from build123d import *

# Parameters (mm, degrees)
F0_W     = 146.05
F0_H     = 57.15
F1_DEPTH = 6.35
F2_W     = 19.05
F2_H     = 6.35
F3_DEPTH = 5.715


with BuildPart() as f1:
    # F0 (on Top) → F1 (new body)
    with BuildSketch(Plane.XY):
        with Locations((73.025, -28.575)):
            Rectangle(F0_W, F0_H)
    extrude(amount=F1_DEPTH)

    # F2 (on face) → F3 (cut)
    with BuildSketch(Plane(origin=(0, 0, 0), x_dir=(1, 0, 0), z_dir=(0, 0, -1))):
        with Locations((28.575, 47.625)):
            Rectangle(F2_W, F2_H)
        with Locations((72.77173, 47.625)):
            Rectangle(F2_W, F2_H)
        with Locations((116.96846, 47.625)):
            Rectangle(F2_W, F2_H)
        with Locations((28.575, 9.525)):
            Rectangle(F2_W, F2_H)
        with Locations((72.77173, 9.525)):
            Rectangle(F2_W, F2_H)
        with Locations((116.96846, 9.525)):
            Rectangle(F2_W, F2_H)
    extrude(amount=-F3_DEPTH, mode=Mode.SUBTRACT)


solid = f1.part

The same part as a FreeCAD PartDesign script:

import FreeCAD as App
import Part
import Sketcher
from FreeCAD import Vector
Q = App.Units.Quantity


def add_polygon(sketch, points):
    """Adds a closed chain of lines whose ends are joined by coincident constraints."""
    first, n = sketch.GeometryCount, len(points)
    for a, b in zip(points, points[1:] + points[:1]):
        sketch.addGeometry(Part.LineSegment(App.Vector(*a, 0), App.Vector(*b, 0)), False)
    for i in range(n):
        sketch.addConstraint(Sketcher.Constraint("Coincident", first + i, 2, first + (i + 1) % n, 1))

doc = App.newDocument("Part")
body = doc.addObject("PartDesign::Body", "Body")

sketch1 = doc.addObject("Sketcher::SketchObject", "Sketch")
body.addObject(sketch1)
sketch1.AttachmentSupport = (doc.XY_Plane, [""])
sketch1.MapMode = "FlatFace"
add_polygon(sketch1, [(0, 0), (0, -57), (146, -57), (146, 0)])
sketch1.addConstraint(Sketcher.Constraint("Vertical", 0))
sketch1.addConstraint(Sketcher.Constraint("Horizontal", 1))
sketch1.addConstraint(Sketcher.Constraint("Vertical", 2))
sketch1.addConstraint(Sketcher.Constraint("Horizontal", 3))
sketch1.addConstraint(Sketcher.Constraint("Coincident", 3, 2, -1, 1))
sketch1.addConstraint(Sketcher.Constraint("DistanceX", 1, 1, 1, 2, Q("5.75 in")))
sketch1.addConstraint(Sketcher.Constraint("DistanceY", 0, 2, 0, 1, Q("2.25 in")))
pad1 = doc.addObject("PartDesign::Pad", "Pad")
body.addObject(pad1)
pad1.Profile = sketch1
pad1.Length = Q("0.25 in")

sketch2 = doc.addObject("Sketcher::SketchObject", "Sketch001")
body.addObject(sketch2)
sketch2.AttachmentSupport = (doc.XY_Plane, [""])
sketch2.MapMode = "FlatFace"
add_polygon(sketch2, [(19, -51), (19, -44), (38, -44), (38, -51)])
add_polygon(sketch2, [(63, -51), (63, -44), (82, -44), (82, -51)])
add_polygon(sketch2, [(107, -51), (107, -44), (126, -44), (126, -51)])
add_polygon(sketch2, [(19, -13), (19, -6), (38, -6), (38, -13)])
add_polygon(sketch2, [(63, -13), (63, -6), (82, -6), (82, -13)])
add_polygon(sketch2, [(107, -13), (107, -6), (126, -6), (126, -13)])
sketch2.addConstraint(Sketcher.Constraint("Vertical", 0))
sketch2.addConstraint(Sketcher.Constraint("Horizontal", 1))
sketch2.addConstraint(Sketcher.Constraint("Vertical", 2))
sketch2.addConstraint(Sketcher.Constraint("Horizontal", 3))
sketch2.addConstraint(Sketcher.Constraint("Vertical", 4))
sketch2.addConstraint(Sketcher.Constraint("Horizontal", 5))
sketch2.addConstraint(Sketcher.Constraint("Vertical", 6))
sketch2.addConstraint(Sketcher.Constraint("Horizontal", 7))
sketch2.addConstraint(Sketcher.Constraint("Vertical", 8))
sketch2.addConstraint(Sketcher.Constraint("Horizontal", 9))
sketch2.addConstraint(Sketcher.Constraint("Vertical", 10))
sketch2.addConstraint(Sketcher.Constraint("Horizontal", 11))
sketch2.addConstraint(Sketcher.Constraint("Vertical", 12))
sketch2.addConstraint(Sketcher.Constraint("Horizontal", 13))
sketch2.addConstraint(Sketcher.Constraint("Vertical", 14))
sketch2.addConstraint(Sketcher.Constraint("Horizontal", 15))
sketch2.addConstraint(Sketcher.Constraint("Vertical", 16))
sketch2.addConstraint(Sketcher.Constraint("Horizontal", 17))
sketch2.addConstraint(Sketcher.Constraint("Vertical", 18))
sketch2.addConstraint(Sketcher.Constraint("Horizontal", 19))
sketch2.addConstraint(Sketcher.Constraint("Vertical", 20))
sketch2.addConstraint(Sketcher.Constraint("Horizontal", 21))
sketch2.addConstraint(Sketcher.Constraint("Vertical", 22))
sketch2.addConstraint(Sketcher.Constraint("Horizontal", 23))
sketch2.addConstraint(Sketcher.Constraint("Horizontal", 1, 2, 4, 2))
sketch2.addConstraint(Sketcher.Constraint("Horizontal", 3, 2, 6, 2))
sketch2.addConstraint(Sketcher.Constraint("Horizontal", 5, 2, 8, 2))
sketch2.addConstraint(Sketcher.Constraint("Horizontal", 7, 2, 10, 2))
sketch2.addConstraint(Sketcher.Constraint("Horizontal", 13, 2, 16, 2))
sketch2.addConstraint(Sketcher.Constraint("Horizontal", 15, 2, 18, 2))
sketch2.addConstraint(Sketcher.Constraint("Horizontal", 17, 2, 20, 2))
sketch2.addConstraint(Sketcher.Constraint("Horizontal", 19, 2, 22, 2))
sketch2.addConstraint(Sketcher.Constraint("Vertical", 3, 2, 12, 2))
sketch2.addConstraint(Sketcher.Constraint("Vertical", 2, 2, 13, 2))
sketch2.addConstraint(Sketcher.Constraint("Vertical", 7, 2, 16, 2))
sketch2.addConstraint(Sketcher.Constraint("Vertical", 6, 2, 17, 2))
sketch2.addConstraint(Sketcher.Constraint("Vertical", 11, 2, 20, 2))
sketch2.addConstraint(Sketcher.Constraint("Vertical", 10, 2, 21, 2))
sketch2.addConstraint(Sketcher.Constraint("Equal", 3, 5))
sketch2.addConstraint(Sketcher.Constraint("Equal", 7, 9))
sketch2.addConstraint(Sketcher.Constraint("Equal", 10, 12))
sketch2.addConstraint(Sketcher.Constraint("DistanceY", 2, 2, -1, 1, Q("2 in")))
sketch2.addConstraint(Sketcher.Constraint("DistanceX", 1, 1, 1, 2, Q("0.75 in")))
sketch2.addConstraint(Sketcher.Constraint("DistanceY", 0, 1, 0, 2, Q("0.25 in")))
sketch2.addConstraint(Sketcher.Constraint("DistanceX", -1, 1, 1, 2, Q("1.5 in")))
sketch2.addConstraint(Sketcher.Constraint("DistanceY", 14, 2, -1, 1, Q("0.5 in")))
sketch2.addConstraint(Sketcher.Constraint("DistanceX", -1, 1, 4, 2, 63.24673))
sketch2.addConstraint(Sketcher.Constraint("DistanceX", -1, 1, 8, 2, 107.44346))
pocket1 = doc.addObject("PartDesign::Pocket", "Pocket")
body.addObject(pocket1)
pocket1.Profile = sketch2
pocket1.Length = Q("0.225 in")
pocket1.Reversed = True

doc.recompute()
